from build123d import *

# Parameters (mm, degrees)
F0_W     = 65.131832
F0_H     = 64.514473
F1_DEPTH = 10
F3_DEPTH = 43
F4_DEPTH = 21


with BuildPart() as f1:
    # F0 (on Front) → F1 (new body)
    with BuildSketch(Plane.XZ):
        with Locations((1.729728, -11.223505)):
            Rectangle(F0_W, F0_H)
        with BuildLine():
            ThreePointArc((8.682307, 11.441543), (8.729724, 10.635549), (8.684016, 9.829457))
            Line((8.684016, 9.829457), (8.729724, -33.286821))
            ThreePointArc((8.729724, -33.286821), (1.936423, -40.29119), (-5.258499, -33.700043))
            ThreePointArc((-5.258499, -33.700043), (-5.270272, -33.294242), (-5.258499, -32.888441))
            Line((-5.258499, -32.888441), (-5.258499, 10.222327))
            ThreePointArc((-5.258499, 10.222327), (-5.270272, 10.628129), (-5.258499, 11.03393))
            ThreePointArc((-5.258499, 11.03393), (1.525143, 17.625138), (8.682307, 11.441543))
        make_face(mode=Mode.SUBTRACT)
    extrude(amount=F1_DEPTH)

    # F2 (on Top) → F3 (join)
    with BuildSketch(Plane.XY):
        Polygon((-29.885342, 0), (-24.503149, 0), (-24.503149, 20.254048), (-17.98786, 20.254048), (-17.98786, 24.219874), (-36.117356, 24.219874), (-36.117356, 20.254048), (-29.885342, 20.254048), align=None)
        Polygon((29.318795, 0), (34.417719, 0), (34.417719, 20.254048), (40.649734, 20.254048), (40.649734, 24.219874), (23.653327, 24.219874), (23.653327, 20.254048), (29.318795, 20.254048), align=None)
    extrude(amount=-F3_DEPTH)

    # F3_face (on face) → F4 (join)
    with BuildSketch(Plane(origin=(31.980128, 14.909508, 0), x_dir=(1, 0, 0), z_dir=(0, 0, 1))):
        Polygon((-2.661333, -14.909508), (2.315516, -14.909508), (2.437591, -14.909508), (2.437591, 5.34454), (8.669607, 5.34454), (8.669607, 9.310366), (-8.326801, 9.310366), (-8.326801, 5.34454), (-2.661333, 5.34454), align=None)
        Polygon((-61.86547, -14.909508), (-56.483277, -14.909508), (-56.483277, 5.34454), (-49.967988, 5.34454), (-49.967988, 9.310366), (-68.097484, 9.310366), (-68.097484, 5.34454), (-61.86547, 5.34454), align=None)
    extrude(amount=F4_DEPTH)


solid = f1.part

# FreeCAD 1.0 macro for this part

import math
import FreeCAD as App
import Part
import Sketcher

V = App.Vector
Q = App.Units.Quantity

doc = App.newDocument("Part")
body = doc.addObject("PartDesign::Body", "Body")

# Sketch on XZ plane
sketch1 = doc.addObject("Sketcher::SketchObject", "Sketch")
body.addObject(sketch1)
sketch1.AttachmentSupport = (doc.XZ_Plane, [""])
sketch1.MapMode = "FlatFace"
sketch1.addGeometry(Part.LineSegment(V(-30.836188, 21.033731, 0), V(-30.836188, -43.480742, 0)), False)
sketch1.addGeometry(Part.LineSegment(V(-30.836188, -43.480742, 0), V(34.295644, -43.480742, 0)), False)
sketch1.addGeometry(Part.LineSegment(V(34.295644, -43.480742, 0), V(34.295644, 21.033731, 0)), False)
sketch1.addGeometry(Part.LineSegment(V(34.295644, 21.033731, 0), V(-30.836188, 21.033731, 0)), False)
sketch1.addGeometry(Part.ArcOfCircle(Part.Circle(V(1.729728, 10.628129, 0), V(0, 0, 1), 7), math.radians(6.672962), math.radians(176.676608)), False)
sketch1.addGeometry(Part.ArcOfCircle(Part.Circle(V(1.729741, 10.628129, 0), V(0, 0, 1), 6.999987), math.radians(-6.551495), math.radians(6.672976)), False)
sketch1.addGeometry(Part.LineSegment(V(8.684016, 9.829457, 0), V(8.729724, -33.286821, 0)), False)
sketch1.addGeometry(Part.ArcOfCircle(Part.Circle(V(1.729728, -33.294243, 0), V(0, 0, 1), 7), math.radians(-176.676616), math.radians(0.060747)), False)
sketch1.addGeometry(Part.ArcOfCircle(Part.Circle(V(1.729348, -33.294242, 0), V(0, 0, 1), 6.99962), math.radians(176.67643), math.radians(183.32357)), False)
sketch1.addGeometry(Part.LineSegment(V(-5.258499, -32.888441, 0), V(-5.258499, 10.222327, 0)), False)
sketch1.addGeometry(Part.ArcOfCircle(Part.Circle(V(1.729365, 10.628129, 0), V(0, 0, 1), 6.999637), math.radians(176.676434), math.radians(183.323566)), False)
sketch1.addConstraint(Sketcher.Constraint("Coincident", 0, 2, 1, 1))
sketch1.addConstraint(Sketcher.Constraint("Coincident", 1, 2, 2, 1))
sketch1.addConstraint(Sketcher.Constraint("Coincident", 2, 2, 3, 1))
sketch1.addConstraint(Sketcher.Constraint("Coincident", 3, 2, 0, 1))
sketch1.addConstraint(Sketcher.Constraint("Coincident", 4, 1, 5, 2))
sketch1.addConstraint(Sketcher.Constraint("Coincident", 5, 1, 6, 1))
sketch1.addConstraint(Sketcher.Constraint("Coincident", 6, 2, 7, 2))
sketch1.addConstraint(Sketcher.Constraint("Coincident", 7, 1, 8, 2))
sketch1.addConstraint(Sketcher.Constraint("Coincident", 8, 1, 9, 1))
sketch1.addConstraint(Sketcher.Constraint("Coincident", 9, 2, 10, 2))
sketch1.addConstraint(Sketcher.Constraint("Coincident", 10, 1, 4, 2))
sketch1.addConstraint(Sketcher.Constraint("Vertical", 0))
sketch1.addConstraint(Sketcher.Constraint("Horizontal", 1))
sketch1.addConstraint(Sketcher.Constraint("Vertical", 2))
sketch1.addConstraint(Sketcher.Constraint("Horizontal", 3))
sketch1.addConstraint(Sketcher.Constraint("Vertical", 9))
sketch1.addConstraint(Sketcher.Constraint("Radius", 4, Q("7 mm")))
sketch1.addConstraint(Sketcher.Constraint("Radius", 7, Q("7 mm")))
sketch1.addConstraint(Sketcher.Constraint("Radius", 8, Q("6.99962 mm")))
sketch1.addConstraint(Sketcher.Constraint("Radius", 5, Q("6.999987 mm")))
sketch1.addConstraint(Sketcher.Constraint("Radius", 10, Q("6.999637 mm")))
sketch1.addConstraint(Sketcher.Constraint("DistanceX", 7, 1, -1, 1, Q("5.258499 mm")))
sketch1.addConstraint(Sketcher.Constraint("DistanceX", 8, 1, -1, 1, Q("5.258499 mm")))
sketch1.addConstraint(Sketcher.Constraint("DistanceX", 10, 1, -1, 1, Q("5.258499 mm")))
sketch1.addConstraint(Sketcher.Constraint("DistanceY", 0, 2, 8, 3, Q("10.1865 mm")))
sketch1.addConstraint(Sketcher.Constraint("DistanceY", 0, 2, 7, 3, Q("10.186499 mm")))
sketch1.addConstraint(Sketcher.Constraint("DistanceY", 7, 1, 8, 3, Q("0.405801 mm")))
sketch1.addConstraint(Sketcher.Constraint("DistanceY", 9, 2, 10, 3, Q("0.405802 mm")))
sketch1.addConstraint(Sketcher.Constraint("DistanceY", 9, 2, 4, 3, Q("0.405802 mm")))
sketch1.addConstraint(Sketcher.Constraint("DistanceY", 9, 2, 5, 3, Q("0.405802 mm")))
sketch1.addConstraint(Sketcher.Constraint("DistanceX", 1, 1, 1, 2, Q("65.131832 mm")))
sketch1.addConstraint(Sketcher.Constraint("DistanceY", 0, 2, 0, 1, Q("64.514473 mm")))
sketch1.addConstraint(Sketcher.Constraint("DistanceY", 9, 1, 9, 2, Q("43.110768 mm")))
sketch1.addConstraint(Sketcher.Constraint("DistanceY", -1, 1, 4, 3, Q("10.628129 mm")))
sketch1.addConstraint(Sketcher.Constraint("DistanceX", 0, 2, -1, 1, Q("30.836188 mm")))
sketch1.addConstraint(Sketcher.Constraint("DistanceY", 6, 2, -1, 1, Q("33.286821 mm")))
sketch1.addConstraint(Sketcher.Constraint("DistanceX", 4, 3, 4, 1, Q("6.952579 mm")))
sketch1.addConstraint(Sketcher.Constraint("DistanceX", 4, 1, 5, 1, Q("0.001709 mm")))
pad1 = doc.addObject("PartDesign::Pad", "Pad")
body.addObject(pad1)
pad1.Profile = sketch1
pad1.Length = 10

# Sketch on XY plane
sketch2 = doc.addObject("Sketcher::SketchObject", "Sketch001")
body.addObject(sketch2)
sketch2.AttachmentSupport = (doc.XY_Plane, [""])
sketch2.MapMode = "FlatFace"
sketch2.addGeometry(Part.LineSegment(V(-29.885342, 0, 0), V(-24.503149, 0, 0)), False)
sketch2.addGeometry(Part.LineSegment(V(-24.503149, 0, 0), V(-24.503149, 20.254048, 0)), False)
sketch2.addGeometry(Part.LineSegment(V(-24.503149, 20.254048, 0), V(-17.98786, 20.254048, 0)), False)
sketch2.addGeometry(Part.LineSegment(V(-17.98786, 20.254048, 0), V(-17.98786, 24.219874, 0)), False)
sketch2.addGeometry(Part.LineSegment(V(-17.98786, 24.219874, 0), V(-36.117356, 24.219874, 0)), False)
sketch2.addGeometry(Part.LineSegment(V(-36.117356, 24.219874, 0), V(-36.117356, 20.254048, 0)), False)
sketch2.addGeometry(Part.LineSegment(V(-36.117356, 20.254048, 0), V(-29.885342, 20.254048, 0)), False)
sketch2.addGeometry(Part.LineSegment(V(-29.885342, 20.254048, 0), V(-29.885342, 0, 0)), False)
sketch2.addGeometry(Part.LineSegment(V(29.318795, 0, 0), V(34.417719, 0, 0)), False)
sketch2.addGeometry(Part.LineSegment(V(34.417719, 0, 0), V(34.417719, 20.254048, 0)), False)
sketch2.addGeometry(Part.LineSegment(V(34.417719, 20.254048, 0), V(40.649734, 20.254048, 0)), False)
sketch2.addGeometry(Part.LineSegment(V(40.649734, 20.254048, 0), V(40.649734, 24.219874, 0)), False)
sketch2.addGeometry(Part.LineSegment(V(40.649734, 24.219874, 0), V(23.653327, 24.219874, 0)), False)
sketch2.addGeometry(Part.LineSegment(V(23.653327, 24.219874, 0), V(23.653327, 20.254048, 0)), False)
sketch2.addGeometry(Part.LineSegment(V(23.653327, 20.254048, 0), V(29.318795, 20.254048, 0)), False)
sketch2.addGeometry(Part.LineSegment(V(29.318795, 20.254048, 0), V(29.318795, 0, 0)), False)
sketch2.addConstraint(Sketcher.Constraint("Coincident", 0, 2, 1, 1))
sketch2.addConstraint(Sketcher.Constraint("Coincident", 1, 2, 2, 1))
sketch2.addConstraint(Sketcher.Constraint("Coincident", 2, 2, 3, 1))
sketch2.addConstraint(Sketcher.Constraint("Coincident", 3, 2, 4, 1))
sketch2.addConstraint(Sketcher.Constraint("Coincident", 4, 2, 5, 1))
sketch2.addConstraint(Sketcher.Constraint("Coincident", 5, 2, 6, 1))
sketch2.addConstraint(Sketcher.Constraint("Coincident", 6, 2, 7, 1))
sketch2.addConstraint(Sketcher.Constraint("Coincident", 7, 2, 0, 1))
sketch2.addConstraint(Sketcher.Constraint("Coincident", 8, 2, 9, 1))
sketch2.addConstraint(Sketcher.Constraint("Coincident", 9, 2, 10, 1))
sketch2.addConstraint(Sketcher.Constraint("Coincident", 10, 2, 11, 1))
sketch2.addConstraint(Sketcher.Constraint("Coincident", 11, 2, 12, 1))
sketch2.addConstraint(Sketcher.Constraint("Coincident", 12, 2, 13, 1))
sketch2.addConstraint(Sketcher.Constraint("Coincident", 13, 2, 14, 1))
sketch2.addConstraint(Sketcher.Constraint("Coincident", 14, 2, 15, 1))
sketch2.addConstraint(Sketcher.Constraint("Coincident", 15, 2, 8, 1))
sketch2.addConstraint(Sketcher.Constraint("Horizontal", 0))
sketch2.addConstraint(Sketcher.Constraint("Vertical", 1))
sketch2.addConstraint(Sketcher.Constraint("Horizontal", 2))
sketch2.addConstraint(Sketcher.Constraint("Vertical", 3))
sketch2.addConstraint(Sketcher.Constraint("Horizontal", 4))
sketch2.addConstraint(Sketcher.Constraint("Vertical", 5))
sketch2.addConstraint(Sketcher.Constraint("Horizontal", 6))
sketch2.addConstraint(Sketcher.Constraint("Vertical", 7))
sketch2.addConstraint(Sketcher.Constraint("Horizontal", 8))
sketch2.addConstraint(Sketcher.Constraint("Vertical", 9))
sketch2.addConstraint(Sketcher.Constraint("Horizontal", 10))
sketch2.addConstraint(Sketcher.Constraint("Vertical", 11))
sketch2.addConstraint(Sketcher.Constraint("Horizontal", 12))
sketch2.addConstraint(Sketcher.Constraint("Vertical", 13))
sketch2.addConstraint(Sketcher.Constraint("Horizontal", 14))
sketch2.addConstraint(Sketcher.Constraint("Vertical", 15))
sketch2.addConstraint(Sketcher.Constraint("PointOnObject", 0, 2, -1))
sketch2.addConstraint(Sketcher.Constraint("PointOnObject", 8, 2, -1))
sketch2.addConstraint(Sketcher.Constraint("Horizontal", 2, 2, 5, 2))
sketch2.addConstraint(Sketcher.Constraint("Horizontal", 6, 2, 9, 2))
sketch2.addConstraint(Sketcher.Constraint("Horizontal", 4, 2, 11, 2))
sketch2.addConstraint(Sketcher.Constraint("Horizontal", 10, 2, 13, 2))
sketch2.addConstraint(Sketcher.Constraint("Equal", 6, 10))
sketch2.addConstraint(Sketcher.Constraint("DistanceX", 2, 1, 2, 2, Q("6.515289 mm")))
sketch2.addConstraint(Sketcher.Constraint("DistanceX", 14, 1, 14, 2, Q("5.665468 mm")))
sketch2.addConstraint(Sketcher.Constraint("DistanceY", 1, 1, 1, 2, Q("20.254048 mm")))
sketch2.addConstraint(Sketcher.Constraint("DistanceX", 0, 1, 0, 2, Q("5.382193 mm")))
sketch2.addConstraint(Sketcher.Constraint("DistanceX", 4, 2, 4, 1, Q("18.129496 mm")))
sketch2.addConstraint(Sketcher.Constraint("DistanceX", 8, 1, 8, 2, Q("5.098924 mm")))
sketch2.addConstraint(Sketcher.Constraint("DistanceY", 3, 1, 3, 2, Q("3.965826 mm")))
sketch2.addConstraint(Sketcher.Constraint("DistanceX", 0, 2, -1, 1, Q("24.503149 mm")))
sketch2.addConstraint(Sketcher.Constraint("DistanceX", -1, 1, 8, 2, Q("34.417719 mm")))
pad2 = doc.addObject("PartDesign::Pad", "Pad001")
body.addObject(pad2)
pad2.Profile = sketch2
pad2.Length = 43
pad2.Reversed = True

# Sketch on XY plane
sketch3 = doc.addObject("Sketcher::SketchObject", "Sketch002")
body.addObject(sketch3)
sketch3.AttachmentSupport = (doc.XY_Plane, [""])
sketch3.MapMode = "FlatFace"
sketch3.addGeometry(Part.LineSegment(V(29.318795, 0, 0), V(34.417719, 0, 0)), False)
sketch3.addGeometry(Part.LineSegment(V(34.417719, 0, 0), V(34.417719, 20.254048, 0)), False)
sketch3.addGeometry(Part.LineSegment(V(34.417719, 20.254048, 0), V(40.649735, 20.254048, 0)), False)
sketch3.addGeometry(Part.LineSegment(V(40.649735, 20.254048, 0), V(40.649735, 24.219874, 0)), False)
sketch3.addGeometry(Part.LineSegment(V(40.649735, 24.219874, 0), V(23.653327, 24.219874, 0)), False)
sketch3.addGeometry(Part.LineSegment(V(23.653327, 24.219874, 0), V(23.653327, 20.254048, 0)), False)
sketch3.addGeometry(Part.LineSegment(V(23.653327, 20.254048, 0), V(29.318795, 20.254048, 0)), False)
sketch3.addGeometry(Part.LineSegment(V(29.318795, 20.254048, 0), V(29.318795, 0, 0)), False)
sketch3.addGeometry(Part.LineSegment(V(-29.885342, 0, 0), V(-24.503149, 0, 0)), False)
sketch3.addGeometry(Part.LineSegment(V(-24.503149, 0, 0), V(-24.503149, 20.254048, 0)), False)
sketch3.addGeometry(Part.LineSegment(V(-24.503149, 20.254048, 0), V(-17.98786, 20.254048, 0)), False)
sketch3.addGeometry(Part.LineSegment(V(-17.98786, 20.254048, 0), V(-17.98786, 24.219874, 0)), False)
sketch3.addGeometry(Part.LineSegment(V(-17.98786, 24.219874, 0), V(-36.117356, 24.219874, 0)), False)
sketch3.addGeometry(Part.LineSegment(V(-36.117356, 24.219874, 0), V(-36.117356, 20.254048, 0)), False)
sketch3.addGeometry(Part.LineSegment(V(-36.117356, 20.254048, 0), V(-29.885342, 20.254048, 0)), False)
sketch3.addGeometry(Part.LineSegment(V(-29.885342, 20.254048, 0), V(-29.885342, 0, 0)), False)
sketch3.addConstraint(Sketcher.Constraint("Coincident", 0, 2, 1, 1))
sketch3.addConstraint(Sketcher.Constraint("Coincident", 1, 2, 2, 1))
sketch3.addConstraint(Sketcher.Constraint("Coincident", 2, 2, 3, 1))
sketch3.addConstraint(Sketcher.Constraint("Coincident", 3, 2, 4, 1))
sketch3.addConstraint(Sketcher.Constraint("Coincident", 4, 2, 5, 1))
sketch3.addConstraint(Sketcher.Constraint("Coincident", 5, 2, 6, 1))
sketch3.addConstraint(Sketcher.Constraint("Coincident", 6, 2, 7, 1))
sketch3.addConstraint(Sketcher.Constraint("Coincident", 7, 2, 0, 1))
sketch3.addConstraint(Sketcher.Constraint("Coincident", 8, 2, 9, 1))
sketch3.addConstraint(Sketcher.Constraint("Coincident", 9, 2, 10, 1))
sketch3.addConstraint(Sketcher.Constraint("Coincident", 10, 2, 11, 1))
sketch3.addConstraint(Sketcher.Constraint("Coincident", 11, 2, 12, 1))
sketch3.addConstraint(Sketcher.Constraint("Coincident", 12, 2, 13, 1))
sketch3.addConstraint(Sketcher.Constraint("Coincident", 13, 2, 14, 1))
sketch3.addConstraint(Sketcher.Constraint("Coincident", 14, 2, 15, 1))
sketch3.addConstraint(Sketcher.Constraint("Coincident", 15, 2, 8, 1))
sketch3.addConstraint(Sketcher.Constraint("Horizontal", 0))
sketch3.addConstraint(Sketcher.Constraint("Vertical", 1))
sketch3.addConstraint(Sketcher.Constraint("Horizontal", 2))
sketch3.addConstraint(Sketcher.Constraint("Vertical", 3))
sketch3.addConstraint(Sketcher.Constraint("Horizontal", 4))
sketch3.addConstraint(Sketcher.Constraint("Vertical", 5))
sketch3.addConstraint(Sketcher.Constraint("Horizontal", 6))
sketch3.addConstraint(Sketcher.Constraint("Vertical", 7))
sketch3.addConstraint(Sketcher.Constraint("Horizontal", 8))
sketch3.addConstraint(Sketcher.Constraint("Vertical", 9))
sketch3.addConstraint(Sketcher.Constraint("Horizontal", 10))
sketch3.addConstraint(Sketcher.Constraint("Vertical", 11))
sketch3.addConstraint(Sketcher.Constraint("Horizontal", 12))
sketch3.addConstraint(Sketcher.Constraint("Vertical", 13))
sketch3.addConstraint(Sketcher.Constraint("Horizontal", 14))
sketch3.addConstraint(Sketcher.Constraint("Vertical", 15))
sketch3.addConstraint(Sketcher.Constraint("PointOnObject", 0, 2, -1))
sketch3.addConstraint(Sketcher.Constraint("PointOnObject", 8, 2, -1))
sketch3.addConstraint(Sketcher.Constraint("Horizontal", 2, 2, 5, 2))
sketch3.addConstraint(Sketcher.Constraint("Horizontal", 6, 2, 9, 2))
sketch3.addConstraint(Sketcher.Constraint("Horizontal", 4, 2, 11, 2))
sketch3.addConstraint(Sketcher.Constraint("Horizontal", 10, 2, 13, 2))
sketch3.addConstraint(Sketcher.Constraint("DistanceX", 6, 1, 6, 2, Q("5.665468 mm")))
sketch3.addConstraint(Sketcher.Constraint("DistanceX", 10, 1, 10, 2, Q("6.515289 mm")))
sketch3.addConstraint(Sketcher.Constraint("DistanceY", 1, 1, 1, 2, Q("20.254048 mm")))
sketch3.addConstraint(Sketcher.Constraint("DistanceX", 0, 1, 0, 2, Q("5.098924 mm")))
sketch3.addConstraint(Sketcher.Constraint("DistanceX", 2, 1, 2, 2, Q("6.232016 mm")))
sketch3.addConstraint(Sketcher.Constraint("DistanceX", 8, 1, 8, 2, Q("5.382193 mm")))
sketch3.addConstraint(Sketcher.Constraint("DistanceX", 12, 2, 12, 1, Q("18.129496 mm")))
sketch3.addConstraint(Sketcher.Constraint("DistanceY", 3, 1, 3, 2, Q("3.965826 mm")))
sketch3.addConstraint(Sketcher.Constraint("DistanceX", -1, 1, 0, 2, Q("34.417719 mm")))
sketch3.addConstraint(Sketcher.Constraint("DistanceX", 8, 2, -1, 1, Q("24.503149 mm")))
pad3 = doc.addObject("PartDesign::Pad", "Pad002")
body.addObject(pad3)
pad3.Profile = sketch3
pad3.Length = 21

doc.recompute()
